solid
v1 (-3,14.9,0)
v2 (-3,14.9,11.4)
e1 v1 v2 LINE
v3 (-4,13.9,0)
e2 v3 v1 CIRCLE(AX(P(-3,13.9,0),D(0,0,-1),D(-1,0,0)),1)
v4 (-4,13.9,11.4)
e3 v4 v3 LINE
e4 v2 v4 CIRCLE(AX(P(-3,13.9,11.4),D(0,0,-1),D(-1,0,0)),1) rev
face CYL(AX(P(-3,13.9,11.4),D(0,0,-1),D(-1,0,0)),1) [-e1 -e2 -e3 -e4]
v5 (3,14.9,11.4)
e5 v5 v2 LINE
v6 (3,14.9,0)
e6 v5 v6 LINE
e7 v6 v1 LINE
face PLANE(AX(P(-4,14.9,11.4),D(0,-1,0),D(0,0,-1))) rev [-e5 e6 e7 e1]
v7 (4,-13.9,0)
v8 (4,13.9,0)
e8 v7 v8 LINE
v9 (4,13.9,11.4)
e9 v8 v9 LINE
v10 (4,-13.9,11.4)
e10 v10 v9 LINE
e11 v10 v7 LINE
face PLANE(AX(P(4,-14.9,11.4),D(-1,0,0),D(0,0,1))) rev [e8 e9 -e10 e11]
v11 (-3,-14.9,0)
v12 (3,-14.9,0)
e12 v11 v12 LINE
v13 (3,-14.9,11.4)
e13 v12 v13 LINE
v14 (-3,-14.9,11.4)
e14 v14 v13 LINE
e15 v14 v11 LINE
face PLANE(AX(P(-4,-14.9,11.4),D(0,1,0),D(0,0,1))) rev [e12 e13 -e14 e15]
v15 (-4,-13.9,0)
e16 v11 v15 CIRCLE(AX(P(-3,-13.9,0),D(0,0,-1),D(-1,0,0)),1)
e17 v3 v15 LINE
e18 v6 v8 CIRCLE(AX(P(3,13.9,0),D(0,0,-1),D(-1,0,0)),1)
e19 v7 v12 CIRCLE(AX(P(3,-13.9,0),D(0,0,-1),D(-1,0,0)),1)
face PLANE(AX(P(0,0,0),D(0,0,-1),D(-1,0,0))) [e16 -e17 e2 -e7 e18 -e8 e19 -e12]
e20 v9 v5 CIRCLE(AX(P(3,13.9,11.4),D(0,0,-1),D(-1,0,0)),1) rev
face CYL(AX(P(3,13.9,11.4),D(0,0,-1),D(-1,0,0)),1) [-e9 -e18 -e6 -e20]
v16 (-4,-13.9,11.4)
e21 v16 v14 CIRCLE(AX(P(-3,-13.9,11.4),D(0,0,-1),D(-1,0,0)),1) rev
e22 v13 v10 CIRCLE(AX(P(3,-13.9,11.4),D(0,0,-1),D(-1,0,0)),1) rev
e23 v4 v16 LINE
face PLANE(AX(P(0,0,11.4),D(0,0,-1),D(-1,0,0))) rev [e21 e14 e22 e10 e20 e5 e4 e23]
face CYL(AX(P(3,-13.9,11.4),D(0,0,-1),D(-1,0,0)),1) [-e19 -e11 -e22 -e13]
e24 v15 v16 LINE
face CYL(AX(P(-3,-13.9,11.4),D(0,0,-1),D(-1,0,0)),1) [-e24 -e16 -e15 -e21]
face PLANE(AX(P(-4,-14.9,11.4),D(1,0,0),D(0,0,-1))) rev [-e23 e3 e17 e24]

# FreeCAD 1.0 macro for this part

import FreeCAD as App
import Part
import Sketcher
Q = App.Units.Quantity


def edges_at(feature, points):
    """Names of the edges that pass closest to the given points."""
    edges = feature.Shape.Edges
    near = lambda p: min(range(len(edges)), key=lambda i: edges[i].distToShape(Part.Vertex(*p))[0])
    return sorted({f"Edge{near(p) + 1}" for p in points})


def add_polygon(sketch, points):
    """Adds a closed chain of lines whose ends are joined by coincident constraints."""
    first, n = sketch.GeometryCount, len(points)
    for a, b in zip(points, points[1:] + points[:1]):
        sketch.addGeometry(Part.LineSegment(App.Vector(*a, 0), App.Vector(*b, 0)), False)
    for i in range(n):
        sketch.addConstraint(Sketcher.Constraint("Coincident", first + i, 2, first + (i + 1) % n, 1))

doc = App.newDocument("Part")
body = doc.addObject("PartDesign::Body", "Body")

sketch1 = body.newObject("Sketcher::SketchObject", "Sketch")
sketch1.AttachmentSupport = (doc.getObject("XY_Plane"), [""])
sketch1.MapMode = "FlatFace"
add_polygon(sketch1, [(-4, 14.9), (-4, -14.9), (4, -14.9), (4, 14.9)])
sketch1.addConstraint([
    Sketcher.Constraint("Vertical", 0),
    Sketcher.Constraint("Horizontal", 1),
    Sketcher.Constraint("Vertical", 2),
    Sketcher.Constraint("Horizontal", 3),
    Sketcher.Constraint("Symmetric", 0, 2, 2, 2, -1, 1),
    Sketcher.Constraint("DistanceX", 1, 1, 1, 2, Q("8 mm")),
    Sketcher.Constraint("DistanceY", 0, 2, 0, 1, Q("29.8 mm")),
])
pad1 = body.newObject("PartDesign::Pad", "Pad")
pad1.Profile = sketch1
pad1.Length = 11.4
doc.recompute()

fillet = body.newObject("PartDesign::Fillet", "Fillet")
fillet.Base = (pad1, edges_at(pad1, [
    (4, -14.9, 5.7),
    (-4, -14.9, 5.7),
    (-4, 14.9, 5.7),
    (4, 14.9, 5.7),
]))
fillet.Radius = 1

doc.recompute()
